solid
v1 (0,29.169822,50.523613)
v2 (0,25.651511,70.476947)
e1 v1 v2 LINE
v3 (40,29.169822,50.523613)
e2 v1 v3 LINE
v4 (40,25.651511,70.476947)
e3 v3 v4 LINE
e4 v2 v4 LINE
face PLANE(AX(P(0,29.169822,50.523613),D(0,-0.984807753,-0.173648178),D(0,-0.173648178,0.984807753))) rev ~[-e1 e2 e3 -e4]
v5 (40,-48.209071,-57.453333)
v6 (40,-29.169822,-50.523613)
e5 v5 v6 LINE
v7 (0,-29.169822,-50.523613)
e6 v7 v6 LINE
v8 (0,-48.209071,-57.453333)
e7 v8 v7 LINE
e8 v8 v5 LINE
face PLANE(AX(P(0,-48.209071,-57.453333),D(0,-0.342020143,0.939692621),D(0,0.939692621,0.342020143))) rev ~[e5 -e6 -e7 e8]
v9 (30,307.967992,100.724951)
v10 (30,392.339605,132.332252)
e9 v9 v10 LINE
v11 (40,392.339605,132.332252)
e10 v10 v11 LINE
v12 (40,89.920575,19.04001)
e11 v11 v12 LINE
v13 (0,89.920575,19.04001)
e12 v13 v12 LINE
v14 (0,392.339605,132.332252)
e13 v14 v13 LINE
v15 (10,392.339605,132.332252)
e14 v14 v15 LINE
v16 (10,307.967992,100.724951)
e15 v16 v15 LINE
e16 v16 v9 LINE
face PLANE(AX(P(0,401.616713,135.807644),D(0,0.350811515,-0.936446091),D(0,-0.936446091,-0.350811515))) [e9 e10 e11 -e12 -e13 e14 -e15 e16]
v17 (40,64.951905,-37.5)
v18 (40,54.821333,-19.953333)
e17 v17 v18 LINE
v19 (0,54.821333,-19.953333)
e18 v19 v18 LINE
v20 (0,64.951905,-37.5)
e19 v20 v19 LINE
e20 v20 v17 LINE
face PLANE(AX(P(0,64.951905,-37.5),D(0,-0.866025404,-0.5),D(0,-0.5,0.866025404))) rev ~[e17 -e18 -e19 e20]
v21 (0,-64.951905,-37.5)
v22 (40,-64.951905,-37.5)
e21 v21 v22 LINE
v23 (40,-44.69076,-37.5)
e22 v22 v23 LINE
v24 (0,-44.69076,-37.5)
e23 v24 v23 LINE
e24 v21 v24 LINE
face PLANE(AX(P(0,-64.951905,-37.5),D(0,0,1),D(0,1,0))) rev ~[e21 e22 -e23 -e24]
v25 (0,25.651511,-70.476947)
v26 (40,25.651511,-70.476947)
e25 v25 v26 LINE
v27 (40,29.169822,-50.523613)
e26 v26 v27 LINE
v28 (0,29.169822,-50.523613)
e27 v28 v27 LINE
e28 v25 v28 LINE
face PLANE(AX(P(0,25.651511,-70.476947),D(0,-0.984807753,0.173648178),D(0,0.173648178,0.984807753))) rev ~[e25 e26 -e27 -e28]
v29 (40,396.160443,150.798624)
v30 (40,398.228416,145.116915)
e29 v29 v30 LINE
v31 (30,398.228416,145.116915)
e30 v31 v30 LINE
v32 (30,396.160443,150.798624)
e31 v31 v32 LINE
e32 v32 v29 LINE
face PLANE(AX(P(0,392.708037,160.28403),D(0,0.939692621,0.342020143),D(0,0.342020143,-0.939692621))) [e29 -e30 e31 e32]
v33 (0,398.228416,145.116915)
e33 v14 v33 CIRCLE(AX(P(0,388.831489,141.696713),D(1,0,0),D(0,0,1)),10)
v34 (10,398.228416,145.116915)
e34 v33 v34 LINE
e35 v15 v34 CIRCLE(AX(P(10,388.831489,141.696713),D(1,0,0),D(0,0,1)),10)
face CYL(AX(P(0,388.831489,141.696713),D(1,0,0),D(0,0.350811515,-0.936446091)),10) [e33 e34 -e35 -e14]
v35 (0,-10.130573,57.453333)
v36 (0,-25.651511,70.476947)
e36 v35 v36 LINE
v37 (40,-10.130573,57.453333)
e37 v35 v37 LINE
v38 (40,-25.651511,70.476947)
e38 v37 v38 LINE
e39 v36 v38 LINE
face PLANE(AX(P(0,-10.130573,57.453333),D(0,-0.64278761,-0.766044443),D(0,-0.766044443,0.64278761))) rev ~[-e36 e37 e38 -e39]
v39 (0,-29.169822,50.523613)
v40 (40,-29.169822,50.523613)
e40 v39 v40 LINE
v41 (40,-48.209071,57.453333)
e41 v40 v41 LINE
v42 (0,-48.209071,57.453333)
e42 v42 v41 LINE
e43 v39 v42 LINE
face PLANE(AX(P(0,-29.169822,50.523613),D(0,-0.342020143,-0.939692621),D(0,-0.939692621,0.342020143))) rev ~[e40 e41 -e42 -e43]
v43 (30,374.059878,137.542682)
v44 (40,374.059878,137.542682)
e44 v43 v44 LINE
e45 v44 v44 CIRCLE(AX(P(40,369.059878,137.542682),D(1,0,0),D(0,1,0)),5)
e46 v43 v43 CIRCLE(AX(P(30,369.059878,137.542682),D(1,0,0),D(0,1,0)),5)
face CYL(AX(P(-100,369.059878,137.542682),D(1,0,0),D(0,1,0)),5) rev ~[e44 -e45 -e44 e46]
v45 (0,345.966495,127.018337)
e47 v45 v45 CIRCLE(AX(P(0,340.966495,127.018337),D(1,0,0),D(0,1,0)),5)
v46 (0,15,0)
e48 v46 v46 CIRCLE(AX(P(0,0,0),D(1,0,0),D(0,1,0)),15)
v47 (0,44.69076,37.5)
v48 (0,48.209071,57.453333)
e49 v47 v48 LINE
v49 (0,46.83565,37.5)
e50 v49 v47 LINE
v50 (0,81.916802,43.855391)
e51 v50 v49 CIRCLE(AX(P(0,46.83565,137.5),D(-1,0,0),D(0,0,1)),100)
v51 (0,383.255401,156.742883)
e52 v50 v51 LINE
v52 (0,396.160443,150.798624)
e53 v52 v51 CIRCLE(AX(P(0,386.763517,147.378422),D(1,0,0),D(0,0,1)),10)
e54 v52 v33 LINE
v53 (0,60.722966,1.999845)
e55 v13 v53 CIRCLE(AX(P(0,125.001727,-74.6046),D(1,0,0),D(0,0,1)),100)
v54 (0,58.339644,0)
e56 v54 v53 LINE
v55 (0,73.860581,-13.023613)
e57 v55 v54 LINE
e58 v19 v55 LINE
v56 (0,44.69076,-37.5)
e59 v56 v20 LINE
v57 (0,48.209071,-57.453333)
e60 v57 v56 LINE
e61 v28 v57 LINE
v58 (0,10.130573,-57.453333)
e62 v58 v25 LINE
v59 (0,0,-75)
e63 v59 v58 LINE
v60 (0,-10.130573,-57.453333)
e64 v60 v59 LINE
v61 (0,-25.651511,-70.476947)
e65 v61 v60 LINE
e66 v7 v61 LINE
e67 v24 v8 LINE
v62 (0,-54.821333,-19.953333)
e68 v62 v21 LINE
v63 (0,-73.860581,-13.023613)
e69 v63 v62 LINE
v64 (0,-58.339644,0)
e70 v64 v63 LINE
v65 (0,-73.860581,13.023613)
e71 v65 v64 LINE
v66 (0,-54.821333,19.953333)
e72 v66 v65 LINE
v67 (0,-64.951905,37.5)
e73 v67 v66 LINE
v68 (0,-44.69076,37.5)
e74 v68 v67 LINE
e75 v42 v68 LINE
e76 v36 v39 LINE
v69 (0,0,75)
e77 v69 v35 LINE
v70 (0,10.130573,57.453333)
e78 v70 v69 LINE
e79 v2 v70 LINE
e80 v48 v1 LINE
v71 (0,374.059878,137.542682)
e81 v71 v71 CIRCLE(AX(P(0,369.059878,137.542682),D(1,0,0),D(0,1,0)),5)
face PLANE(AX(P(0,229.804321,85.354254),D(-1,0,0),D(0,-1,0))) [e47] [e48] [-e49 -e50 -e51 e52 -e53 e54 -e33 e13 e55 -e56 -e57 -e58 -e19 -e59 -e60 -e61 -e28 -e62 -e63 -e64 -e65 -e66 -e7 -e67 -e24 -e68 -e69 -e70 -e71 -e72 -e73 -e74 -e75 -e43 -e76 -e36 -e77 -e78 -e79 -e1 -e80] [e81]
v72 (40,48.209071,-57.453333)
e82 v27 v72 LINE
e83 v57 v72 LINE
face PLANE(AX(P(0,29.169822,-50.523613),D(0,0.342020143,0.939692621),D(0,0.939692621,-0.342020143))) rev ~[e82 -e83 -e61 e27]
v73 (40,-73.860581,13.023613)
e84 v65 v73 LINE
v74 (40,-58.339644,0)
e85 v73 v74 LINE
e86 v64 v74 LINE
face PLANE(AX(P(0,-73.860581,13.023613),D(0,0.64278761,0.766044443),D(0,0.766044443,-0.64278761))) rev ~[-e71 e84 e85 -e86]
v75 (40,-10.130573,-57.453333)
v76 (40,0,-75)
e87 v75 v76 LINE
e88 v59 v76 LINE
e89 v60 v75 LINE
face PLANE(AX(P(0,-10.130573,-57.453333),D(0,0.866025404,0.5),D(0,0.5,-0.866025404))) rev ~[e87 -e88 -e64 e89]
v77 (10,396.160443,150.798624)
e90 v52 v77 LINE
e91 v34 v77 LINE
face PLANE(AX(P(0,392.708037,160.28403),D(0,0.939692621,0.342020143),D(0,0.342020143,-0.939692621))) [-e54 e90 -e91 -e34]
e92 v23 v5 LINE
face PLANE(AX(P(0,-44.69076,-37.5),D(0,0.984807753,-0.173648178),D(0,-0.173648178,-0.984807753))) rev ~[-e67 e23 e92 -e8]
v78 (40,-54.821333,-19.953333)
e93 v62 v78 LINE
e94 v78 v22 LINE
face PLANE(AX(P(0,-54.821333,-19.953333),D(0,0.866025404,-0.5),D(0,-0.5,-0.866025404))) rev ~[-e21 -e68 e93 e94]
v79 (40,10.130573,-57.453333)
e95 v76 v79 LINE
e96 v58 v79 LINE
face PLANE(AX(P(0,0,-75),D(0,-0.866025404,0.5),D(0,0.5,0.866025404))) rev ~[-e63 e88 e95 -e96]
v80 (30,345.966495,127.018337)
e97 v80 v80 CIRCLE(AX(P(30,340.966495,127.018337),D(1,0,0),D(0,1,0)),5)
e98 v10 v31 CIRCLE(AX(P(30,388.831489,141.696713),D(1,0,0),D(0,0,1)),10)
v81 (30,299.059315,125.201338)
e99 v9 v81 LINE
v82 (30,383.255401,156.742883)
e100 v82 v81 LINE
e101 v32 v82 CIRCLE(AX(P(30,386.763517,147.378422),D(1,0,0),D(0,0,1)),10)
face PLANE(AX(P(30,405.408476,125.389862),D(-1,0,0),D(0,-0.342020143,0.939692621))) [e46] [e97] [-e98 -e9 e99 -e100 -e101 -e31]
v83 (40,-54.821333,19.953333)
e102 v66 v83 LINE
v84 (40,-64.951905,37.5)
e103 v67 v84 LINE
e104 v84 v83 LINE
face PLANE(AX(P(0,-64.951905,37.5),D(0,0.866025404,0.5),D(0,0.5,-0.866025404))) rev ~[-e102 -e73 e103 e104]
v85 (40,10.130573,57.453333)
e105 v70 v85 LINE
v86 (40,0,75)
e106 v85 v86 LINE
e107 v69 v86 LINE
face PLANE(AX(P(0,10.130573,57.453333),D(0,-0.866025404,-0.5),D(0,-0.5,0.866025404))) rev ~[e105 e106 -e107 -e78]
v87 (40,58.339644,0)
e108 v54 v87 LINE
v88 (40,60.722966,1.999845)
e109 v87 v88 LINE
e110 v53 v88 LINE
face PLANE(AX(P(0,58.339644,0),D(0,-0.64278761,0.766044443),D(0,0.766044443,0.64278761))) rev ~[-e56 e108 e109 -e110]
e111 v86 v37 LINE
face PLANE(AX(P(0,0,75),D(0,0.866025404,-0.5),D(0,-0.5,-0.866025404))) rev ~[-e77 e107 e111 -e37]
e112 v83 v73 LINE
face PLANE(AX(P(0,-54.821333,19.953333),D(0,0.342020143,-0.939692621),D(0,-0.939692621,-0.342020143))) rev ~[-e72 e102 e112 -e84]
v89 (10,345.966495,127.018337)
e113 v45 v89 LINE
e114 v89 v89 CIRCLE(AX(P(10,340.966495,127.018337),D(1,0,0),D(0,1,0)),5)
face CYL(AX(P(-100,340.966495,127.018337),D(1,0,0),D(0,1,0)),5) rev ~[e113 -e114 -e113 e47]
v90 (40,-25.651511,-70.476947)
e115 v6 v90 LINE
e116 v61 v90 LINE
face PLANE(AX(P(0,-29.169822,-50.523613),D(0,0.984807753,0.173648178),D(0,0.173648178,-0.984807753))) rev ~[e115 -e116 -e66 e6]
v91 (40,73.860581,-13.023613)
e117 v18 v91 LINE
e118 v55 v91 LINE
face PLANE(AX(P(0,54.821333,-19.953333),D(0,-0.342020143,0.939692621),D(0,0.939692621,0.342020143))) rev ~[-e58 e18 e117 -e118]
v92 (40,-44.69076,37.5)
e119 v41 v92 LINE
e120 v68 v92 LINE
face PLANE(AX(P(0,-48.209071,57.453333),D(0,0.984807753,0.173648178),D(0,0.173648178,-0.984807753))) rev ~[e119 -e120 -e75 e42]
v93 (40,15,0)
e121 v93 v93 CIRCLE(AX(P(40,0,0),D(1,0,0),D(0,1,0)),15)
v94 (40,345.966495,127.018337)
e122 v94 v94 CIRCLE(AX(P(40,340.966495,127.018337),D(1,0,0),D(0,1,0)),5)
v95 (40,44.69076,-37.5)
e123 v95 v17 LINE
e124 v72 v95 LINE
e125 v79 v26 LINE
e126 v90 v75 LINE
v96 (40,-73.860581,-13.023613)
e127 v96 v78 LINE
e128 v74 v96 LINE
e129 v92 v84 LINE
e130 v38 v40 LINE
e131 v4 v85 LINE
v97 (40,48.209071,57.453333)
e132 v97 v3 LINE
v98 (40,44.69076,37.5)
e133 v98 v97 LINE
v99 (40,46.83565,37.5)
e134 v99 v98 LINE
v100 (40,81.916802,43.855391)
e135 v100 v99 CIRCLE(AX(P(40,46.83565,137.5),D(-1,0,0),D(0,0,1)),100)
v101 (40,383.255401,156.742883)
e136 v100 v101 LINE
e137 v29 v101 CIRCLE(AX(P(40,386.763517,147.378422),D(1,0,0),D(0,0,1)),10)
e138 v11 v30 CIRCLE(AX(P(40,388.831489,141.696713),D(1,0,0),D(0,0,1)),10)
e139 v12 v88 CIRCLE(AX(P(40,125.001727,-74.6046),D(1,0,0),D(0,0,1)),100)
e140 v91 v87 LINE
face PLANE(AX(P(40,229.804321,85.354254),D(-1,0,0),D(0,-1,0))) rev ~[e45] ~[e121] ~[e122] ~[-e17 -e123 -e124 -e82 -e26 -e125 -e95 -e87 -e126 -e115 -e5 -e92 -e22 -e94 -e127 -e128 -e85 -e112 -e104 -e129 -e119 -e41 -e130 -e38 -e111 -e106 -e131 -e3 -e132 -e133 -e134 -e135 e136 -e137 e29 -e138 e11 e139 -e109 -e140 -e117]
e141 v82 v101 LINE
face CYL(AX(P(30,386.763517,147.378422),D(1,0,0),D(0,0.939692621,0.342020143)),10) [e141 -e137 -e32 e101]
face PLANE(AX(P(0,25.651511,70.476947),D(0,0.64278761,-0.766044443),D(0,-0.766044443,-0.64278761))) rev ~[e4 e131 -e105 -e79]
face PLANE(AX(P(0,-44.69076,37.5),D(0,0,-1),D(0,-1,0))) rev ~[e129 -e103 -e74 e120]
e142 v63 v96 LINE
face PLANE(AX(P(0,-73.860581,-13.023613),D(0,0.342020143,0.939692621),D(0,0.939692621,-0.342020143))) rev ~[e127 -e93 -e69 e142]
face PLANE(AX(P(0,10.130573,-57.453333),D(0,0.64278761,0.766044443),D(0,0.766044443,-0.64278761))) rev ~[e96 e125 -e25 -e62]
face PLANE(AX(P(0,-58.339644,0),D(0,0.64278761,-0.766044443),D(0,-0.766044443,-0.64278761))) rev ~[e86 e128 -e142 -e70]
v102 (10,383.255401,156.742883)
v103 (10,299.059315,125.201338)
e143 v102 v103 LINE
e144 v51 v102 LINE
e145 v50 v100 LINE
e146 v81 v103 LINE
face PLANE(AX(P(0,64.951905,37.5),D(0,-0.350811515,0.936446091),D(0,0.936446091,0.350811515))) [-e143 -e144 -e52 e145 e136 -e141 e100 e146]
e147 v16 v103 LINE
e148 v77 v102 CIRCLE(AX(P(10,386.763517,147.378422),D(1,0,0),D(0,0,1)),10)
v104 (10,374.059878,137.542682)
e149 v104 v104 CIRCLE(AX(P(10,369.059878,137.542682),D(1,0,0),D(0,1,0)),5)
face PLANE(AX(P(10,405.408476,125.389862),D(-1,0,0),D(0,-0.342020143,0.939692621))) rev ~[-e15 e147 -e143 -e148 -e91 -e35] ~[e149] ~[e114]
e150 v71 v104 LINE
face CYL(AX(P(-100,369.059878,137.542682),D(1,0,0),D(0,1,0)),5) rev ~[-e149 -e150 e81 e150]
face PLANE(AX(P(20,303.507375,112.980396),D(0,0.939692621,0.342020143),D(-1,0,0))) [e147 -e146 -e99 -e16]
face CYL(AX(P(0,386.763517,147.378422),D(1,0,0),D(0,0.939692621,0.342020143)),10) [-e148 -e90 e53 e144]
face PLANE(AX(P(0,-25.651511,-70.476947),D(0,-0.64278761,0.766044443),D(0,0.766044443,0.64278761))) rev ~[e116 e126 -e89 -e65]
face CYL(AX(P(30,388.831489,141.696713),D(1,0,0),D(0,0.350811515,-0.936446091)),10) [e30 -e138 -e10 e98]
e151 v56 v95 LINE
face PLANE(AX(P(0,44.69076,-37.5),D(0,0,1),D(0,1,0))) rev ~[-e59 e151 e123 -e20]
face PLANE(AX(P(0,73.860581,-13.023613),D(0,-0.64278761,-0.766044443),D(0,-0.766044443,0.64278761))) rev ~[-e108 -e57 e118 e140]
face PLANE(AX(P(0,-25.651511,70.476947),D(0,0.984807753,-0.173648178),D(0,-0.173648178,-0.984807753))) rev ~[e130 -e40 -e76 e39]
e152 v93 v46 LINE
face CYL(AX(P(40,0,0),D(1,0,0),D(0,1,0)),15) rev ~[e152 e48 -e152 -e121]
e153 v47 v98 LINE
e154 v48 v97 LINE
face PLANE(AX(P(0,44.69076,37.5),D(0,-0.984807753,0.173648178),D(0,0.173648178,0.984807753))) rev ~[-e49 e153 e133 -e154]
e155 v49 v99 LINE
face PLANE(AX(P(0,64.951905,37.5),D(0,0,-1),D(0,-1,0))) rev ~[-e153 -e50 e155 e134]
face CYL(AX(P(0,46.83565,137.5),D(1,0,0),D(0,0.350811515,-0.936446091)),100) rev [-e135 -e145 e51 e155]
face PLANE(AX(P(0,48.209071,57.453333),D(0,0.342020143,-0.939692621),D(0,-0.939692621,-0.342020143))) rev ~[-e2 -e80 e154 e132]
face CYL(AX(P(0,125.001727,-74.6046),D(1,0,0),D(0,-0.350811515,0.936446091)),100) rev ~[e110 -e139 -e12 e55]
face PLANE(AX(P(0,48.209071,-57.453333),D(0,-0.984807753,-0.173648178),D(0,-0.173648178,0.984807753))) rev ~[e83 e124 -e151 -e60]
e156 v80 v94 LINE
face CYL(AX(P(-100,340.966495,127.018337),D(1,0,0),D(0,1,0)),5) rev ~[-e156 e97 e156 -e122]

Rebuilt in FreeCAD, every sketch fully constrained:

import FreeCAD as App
import Part
import Sketcher
from FreeCAD import Vector
Q = App.Units.Quantity


def edges_at(feature, points):
    """Names of the edges that pass closest to the given points."""
    edges = feature.Shape.Edges
    near = lambda p: min(range(len(edges)), key=lambda i: edges[i].distToShape(Part.Vertex(*p))[0])
    return sorted({f"Edge{near(p) + 1}" for p in points})


def add_polygon(sketch, points):
    """Adds a closed chain of lines whose ends are joined by coincident constraints."""
    first, n = sketch.GeometryCount, len(points)
    for a, b in zip(points, points[1:] + points[:1]):
        sketch.addGeometry(Part.LineSegment(App.Vector(*a, 0), App.Vector(*b, 0)), False)
    for i in range(n):
        sketch.addConstraint(Sketcher.Constraint("Coincident", first + i, 2, first + (i + 1) % n, 1))

doc = App.newDocument("Part")
body = doc.addObject("PartDesign::Body", "Body")

# Sketch on YZ plane
sketch1 = doc.addObject("Sketcher::SketchObject", "Sketch")
body.addObject(sketch1)
sketch1.AttachmentSupport = (doc.YZ_Plane, [""])
sketch1.MapMode = "FlatFace"
add_polygon(sketch1, [(-74, -13), (-55, -20), (-65, -38), (-45, -38), (-48, -57), (-29, -51), (-26, -70), (-10, -57), (0, -75), (10, -57), (26, -70), (29, -51), (48, -57), (45, -38), (65, -38), (55, -20), (74, -13), (58, 0), (74, 13), (55, 20), (65, 38), (45, 38), (48, 57), (29, 51), (26, 70), (10, 57), (0, 75), (-10, 57), (-26, 70), (-29, 51), (-48, 57), (-45, 38), (-65, 38), (-55, 20), (-74, 13), (-58, 0)])  # lines 0-35
sketch1.addConstraint([
    Sketcher.Constraint("Horizontal", 2),
    Sketcher.Constraint("Horizontal", 13),
    Sketcher.Constraint("Horizontal", 20),
    Sketcher.Constraint("Horizontal", 31),
    Sketcher.Constraint("Symmetric", 0, 2, 18, 2, -1, 1),
    Sketcher.Constraint("Symmetric", 1, 2, 19, 2, -1, 1),
    Sketcher.Constraint("Symmetric", 3, 2, 21, 2, -1, 1),
    Sketcher.Constraint("Symmetric", 4, 2, 22, 2, -1, 1),
    Sketcher.Constraint("Symmetric", 5, 2, 23, 2, -1, 1),
    Sketcher.Constraint("Symmetric", 6, 2, 24, 2, -1, 1),
    Sketcher.Constraint("Symmetric", 7, 2, 25, 2, -1, 1),
    Sketcher.Constraint("Symmetric", 8, 2, 26, 2, -1, 1),
    Sketcher.Constraint("Symmetric", 9, 2, 27, 2, -1, 1),
    Sketcher.Constraint("Symmetric", 10, 2, 28, 2, -1, 1),
    Sketcher.Constraint("Symmetric", 11, 2, 29, 2, -1, 1),
    Sketcher.Constraint("Symmetric", 12, 2, 30, 2, -1, 1),
    Sketcher.Constraint("Symmetric", 14, 2, 32, 2, -1, 1),
    Sketcher.Constraint("Symmetric", 15, 2, 33, 2, -1, 1),
    Sketcher.Constraint("Symmetric", 16, 2, 34, 2, -1, 1),
    Sketcher.Constraint("Symmetric", 17, 2, 35, 2, -1, 1),
    Sketcher.Constraint("Symmetric", 6, 2, 8, 2, -2),
    Sketcher.Constraint("Symmetric", 5, 2, 9, 2, -2),
    Sketcher.Constraint("Symmetric", 4, 2, 10, 2, -2),
    Sketcher.Constraint("Symmetric", 3, 2, 11, 2, -2),
    Sketcher.Constraint("Symmetric", 2, 2, 12, 2, -2),
    Sketcher.Constraint("Symmetric", 0, 2, 14, 2, -2),
    Sketcher.Constraint("Symmetric", 17, 2, 33, 2, -2),
    Sketcher.Constraint("PointOnObject", 7, 2, -2),
    Sketcher.Constraint("PointOnObject", 16, 2, -1),
    Sketcher.Constraint("Parallel", 1, 8),
    Sketcher.Constraint("Parallel", 3, 10),
    Sketcher.Constraint("Parallel", 0, 11),
    Sketcher.Constraint("Parallel", 7, 14),
    Sketcher.Constraint("Parallel", 9, 16),
    Sketcher.Constraint("Parallel", 10, 21),
    Sketcher.Constraint("Parallel", 25, 32),
    Sketcher.Constraint("Horizontal", 3, 2, 6, 2),
    Sketcher.Constraint("Equal", 0, 1),
    Sketcher.Constraint("Equal", 1, 3),
    Sketcher.Constraint("Equal", 3, 4),
    Sketcher.Constraint("Equal", 4, 5),
    Sketcher.Constraint("Equal", 5, 6),
    Sketcher.Constraint("Equal", 6, 7),
    Sketcher.Constraint("Equal", 15, 16),
    Sketcher.Constraint("Angle", 0, Q("-20 deg")),
    Sketcher.Constraint("Angle", 1, Q("-120 deg")),
    Sketcher.Constraint("Angle", 3, Q("-100 deg")),
    Sketcher.Constraint("DistanceY", 7, 2, -1, 1, 75.0),
    Sketcher.Constraint("DistanceX", 2, 1, 2, 2, 20.261146),
])
pad1 = doc.addObject("PartDesign::Pad", "Pad")
body.addObject(pad1)
pad1.Profile = sketch1
pad1.Length = 40

# Sketch on YZ plane
sketch2 = doc.addObject("Sketcher::SketchObject", "Sketch001")
body.addObject(sketch2)
sketch2.AttachmentSupport = (doc.YZ_Plane, [""])
sketch2.MapMode = "FlatFace"
sketch2.AttachmentOffset = App.Placement(Vector(0, 0, 40), App.Rotation())
sketch2.addGeometry(Part.Circle(Vector(0, 0, 0), Vector(0, 0, 1), 15), False)
sketch2.addConstraint([
    Sketcher.Constraint("Coincident", 0, 3, -1, 1),
    Sketcher.Constraint("Diameter", 0, 30.0),
])
pocket1 = doc.addObject("PartDesign::Pocket", "Pocket")
body.addObject(pocket1)
pocket1.Profile = sketch2
pocket1.Length = 40

# Sketch on YZ plane
sketch3 = doc.addObject("Sketcher::SketchObject", "Sketch002")
body.addObject(sketch3)
sketch3.AttachmentSupport = (doc.YZ_Plane, [""])
sketch3.MapMode = "FlatFace"
add_polygon(sketch3, [(402, 136), (74, 13), (55, 20), (65, 38), (393, 160)])  # lines 0-4
sketch3.addConstraint([
    Sketcher.Constraint("Parallel", 0, 3),
    Sketcher.Constraint("Equal", 1, 2),
    Sketcher.Constraint("Equal", 0, 3),
    Sketcher.Constraint("Angle", 1, Q("160 deg")),
    Sketcher.Constraint("Angle", 2, Q("60 deg")),
    Sketcher.Constraint("Distance", 0, 350.0),
    Sketcher.Constraint("DistanceY", -1, 1, 2, 2, 37.5),
    Sketcher.Constraint("DistanceX", -1, 1, 0, 2, 73.860581),
    Sketcher.Constraint("DistanceY", -1, 1, 3, 2, 160.28403),
    Sketcher.Constraint("DistanceX", 1, 2, 0, 2, 19.039249),
])
pad2 = doc.addObject("PartDesign::Pad", "Pad001")
body.addObject(pad2)
pad2.Profile = sketch3
pad2.Length = 40
doc.recompute()

fillet = doc.addObject("PartDesign::Fillet", "Fillet")
body.addObject(fillet)
fillet.Base = (pad2, edges_at(pad2, [(20, 64.952, 37.5), (20, 73.861, 13.024)]))
fillet.Radius = 100

# Sketch on an angled plane
sketch4 = doc.addObject("Sketcher::SketchObject", "Sketch003")
body.addObject(sketch4)
sketch4.Placement = App.Placement(Vector(0, 398.284218, 144.9636), App.Rotation(Vector(-1, 0, 0), Vector(0, -0.342020143, 0.939692621), Vector(0, 0.939692621, 0.342020143), "ZXY"))
add_polygon(sketch4, [(-30, 26), (-30, -21), (-10, -21), (-10, 26)])  # lines 0-3
sketch4.addConstraint([
    Sketcher.Constraint("Vertical", 0),
    Sketcher.Constraint("Horizontal", 1),
    Sketcher.Constraint("Vertical", 2),
    Sketcher.Constraint("Horizontal", 3),
    Sketcher.Constraint("DistanceX", 1, 1, 1, 2, 20.0),
    Sketcher.Constraint("DistanceX", 0, 2, -1, 1, 30.0),
    Sketcher.Constraint("DistanceY", 0, 2, 0, 1, 46.38229),
    Sketcher.Constraint("DistanceY", 0, 2, -1, 1, 20.829937),
])
pocket2 = doc.addObject("PartDesign::Pocket", "Pocket001")
body.addObject(pocket2)
pocket2.Profile = sketch4
pocket2.Length = 100
doc.recompute()

fillet2 = doc.addObject("PartDesign::Fillet", "Fillet001")
body.addObject(fillet2)
fillet2.Base = (pocket2, edges_at(pocket2, [
    (5, 401.617, 135.808),
    (35, 401.617, 135.808),
    (35, 392.708, 160.284),
    (5, 392.708, 160.284),
]))
fillet2.Radius = 10

# Sketch on YZ plane
sketch5 = doc.addObject("Sketcher::SketchObject", "Sketch004")
body.addObject(sketch5)
sketch5.AttachmentSupport = (doc.YZ_Plane, [""])
sketch5.MapMode = "FlatFace"
sketch5.addGeometry([
    Part.Circle(Vector(369, 138, 0), Vector(0, 0, 1), 5),
    Part.Circle(Vector(341, 127, 0), Vector(0, 0, 1), 5),
], False)
sketch5.addConstraint([
    Sketcher.Constraint("Equal", 0, 1),
    Sketcher.Constraint("Diameter", 0, 10.0),
    Sketcher.Constraint("DistanceX", -1, 1, 0, 3, 369.059878),
    Sketcher.Constraint("DistanceY", -1, 1, 0, 3, 137.542682),
    Sketcher.Constraint("DistanceX", -1, 1, 1, 3, 340.966495),
    Sketcher.Constraint("DistanceY", -1, 1, 1, 3, 127.018337),
])
doc.recompute()
hole = doc.addObject("PartDesign::Hole", "Hole")
body.addObject(hole)
hole.Profile = sketch5
hole.ThreadType = "None"
hole.Diameter = 10
hole.DepthType = "Dimension"
hole.Depth = 100
hole.DrillPoint = "Angled"
hole.DrillPointAngle = 118
hole.Reversed = True
body2 = doc.addObject("PartDesign::Body", "Body001")

# Sketch on YZ plane
sketch6 = doc.addObject("Sketcher::SketchObject", "Sketch005")
body2.addObject(sketch6)
sketch6.AttachmentSupport = (doc.getObject("YZ_Plane001"), [""])
sketch6.MapMode = "FlatFace"
add_polygon(sketch6, [(89, 42), (55, 20), (65, 38), (45, 38), (78, 60)])  # lines 0-4
sketch6.addConstraint([
    Sketcher.Constraint("Horizontal", 2),
    Sketcher.Constraint("Perpendicular", 0, 4),
    Sketcher.Constraint("Angle", 1, Q("60 deg")),
    Sketcher.Constraint("DistanceY", -1, 1, 1, 2, 37.5),
    Sketcher.Constraint("DistanceX", 2, 2, 2, 1, 20.261146),
    Sketcher.Constraint("DistanceX", -1, 1, 2, 2, 44.69076),
    Sketcher.Constraint("DistanceY", -1, 1, 3, 2, 59.50375),
    Sketcher.Constraint("DistanceY", -1, 1, 4, 2, 42.28653),
    Sketcher.Constraint("DistanceX", 3, 2, 4, 2, 11.20155),
    Sketcher.Constraint("Distance", 0, 40.952586),
])
pad3 = doc.addObject("PartDesign::Pad", "Pad002")
body2.addObject(pad3)
pad3.Profile = sketch6
pad3.Length = 40
body2.Visibility = False

doc.recompute()
